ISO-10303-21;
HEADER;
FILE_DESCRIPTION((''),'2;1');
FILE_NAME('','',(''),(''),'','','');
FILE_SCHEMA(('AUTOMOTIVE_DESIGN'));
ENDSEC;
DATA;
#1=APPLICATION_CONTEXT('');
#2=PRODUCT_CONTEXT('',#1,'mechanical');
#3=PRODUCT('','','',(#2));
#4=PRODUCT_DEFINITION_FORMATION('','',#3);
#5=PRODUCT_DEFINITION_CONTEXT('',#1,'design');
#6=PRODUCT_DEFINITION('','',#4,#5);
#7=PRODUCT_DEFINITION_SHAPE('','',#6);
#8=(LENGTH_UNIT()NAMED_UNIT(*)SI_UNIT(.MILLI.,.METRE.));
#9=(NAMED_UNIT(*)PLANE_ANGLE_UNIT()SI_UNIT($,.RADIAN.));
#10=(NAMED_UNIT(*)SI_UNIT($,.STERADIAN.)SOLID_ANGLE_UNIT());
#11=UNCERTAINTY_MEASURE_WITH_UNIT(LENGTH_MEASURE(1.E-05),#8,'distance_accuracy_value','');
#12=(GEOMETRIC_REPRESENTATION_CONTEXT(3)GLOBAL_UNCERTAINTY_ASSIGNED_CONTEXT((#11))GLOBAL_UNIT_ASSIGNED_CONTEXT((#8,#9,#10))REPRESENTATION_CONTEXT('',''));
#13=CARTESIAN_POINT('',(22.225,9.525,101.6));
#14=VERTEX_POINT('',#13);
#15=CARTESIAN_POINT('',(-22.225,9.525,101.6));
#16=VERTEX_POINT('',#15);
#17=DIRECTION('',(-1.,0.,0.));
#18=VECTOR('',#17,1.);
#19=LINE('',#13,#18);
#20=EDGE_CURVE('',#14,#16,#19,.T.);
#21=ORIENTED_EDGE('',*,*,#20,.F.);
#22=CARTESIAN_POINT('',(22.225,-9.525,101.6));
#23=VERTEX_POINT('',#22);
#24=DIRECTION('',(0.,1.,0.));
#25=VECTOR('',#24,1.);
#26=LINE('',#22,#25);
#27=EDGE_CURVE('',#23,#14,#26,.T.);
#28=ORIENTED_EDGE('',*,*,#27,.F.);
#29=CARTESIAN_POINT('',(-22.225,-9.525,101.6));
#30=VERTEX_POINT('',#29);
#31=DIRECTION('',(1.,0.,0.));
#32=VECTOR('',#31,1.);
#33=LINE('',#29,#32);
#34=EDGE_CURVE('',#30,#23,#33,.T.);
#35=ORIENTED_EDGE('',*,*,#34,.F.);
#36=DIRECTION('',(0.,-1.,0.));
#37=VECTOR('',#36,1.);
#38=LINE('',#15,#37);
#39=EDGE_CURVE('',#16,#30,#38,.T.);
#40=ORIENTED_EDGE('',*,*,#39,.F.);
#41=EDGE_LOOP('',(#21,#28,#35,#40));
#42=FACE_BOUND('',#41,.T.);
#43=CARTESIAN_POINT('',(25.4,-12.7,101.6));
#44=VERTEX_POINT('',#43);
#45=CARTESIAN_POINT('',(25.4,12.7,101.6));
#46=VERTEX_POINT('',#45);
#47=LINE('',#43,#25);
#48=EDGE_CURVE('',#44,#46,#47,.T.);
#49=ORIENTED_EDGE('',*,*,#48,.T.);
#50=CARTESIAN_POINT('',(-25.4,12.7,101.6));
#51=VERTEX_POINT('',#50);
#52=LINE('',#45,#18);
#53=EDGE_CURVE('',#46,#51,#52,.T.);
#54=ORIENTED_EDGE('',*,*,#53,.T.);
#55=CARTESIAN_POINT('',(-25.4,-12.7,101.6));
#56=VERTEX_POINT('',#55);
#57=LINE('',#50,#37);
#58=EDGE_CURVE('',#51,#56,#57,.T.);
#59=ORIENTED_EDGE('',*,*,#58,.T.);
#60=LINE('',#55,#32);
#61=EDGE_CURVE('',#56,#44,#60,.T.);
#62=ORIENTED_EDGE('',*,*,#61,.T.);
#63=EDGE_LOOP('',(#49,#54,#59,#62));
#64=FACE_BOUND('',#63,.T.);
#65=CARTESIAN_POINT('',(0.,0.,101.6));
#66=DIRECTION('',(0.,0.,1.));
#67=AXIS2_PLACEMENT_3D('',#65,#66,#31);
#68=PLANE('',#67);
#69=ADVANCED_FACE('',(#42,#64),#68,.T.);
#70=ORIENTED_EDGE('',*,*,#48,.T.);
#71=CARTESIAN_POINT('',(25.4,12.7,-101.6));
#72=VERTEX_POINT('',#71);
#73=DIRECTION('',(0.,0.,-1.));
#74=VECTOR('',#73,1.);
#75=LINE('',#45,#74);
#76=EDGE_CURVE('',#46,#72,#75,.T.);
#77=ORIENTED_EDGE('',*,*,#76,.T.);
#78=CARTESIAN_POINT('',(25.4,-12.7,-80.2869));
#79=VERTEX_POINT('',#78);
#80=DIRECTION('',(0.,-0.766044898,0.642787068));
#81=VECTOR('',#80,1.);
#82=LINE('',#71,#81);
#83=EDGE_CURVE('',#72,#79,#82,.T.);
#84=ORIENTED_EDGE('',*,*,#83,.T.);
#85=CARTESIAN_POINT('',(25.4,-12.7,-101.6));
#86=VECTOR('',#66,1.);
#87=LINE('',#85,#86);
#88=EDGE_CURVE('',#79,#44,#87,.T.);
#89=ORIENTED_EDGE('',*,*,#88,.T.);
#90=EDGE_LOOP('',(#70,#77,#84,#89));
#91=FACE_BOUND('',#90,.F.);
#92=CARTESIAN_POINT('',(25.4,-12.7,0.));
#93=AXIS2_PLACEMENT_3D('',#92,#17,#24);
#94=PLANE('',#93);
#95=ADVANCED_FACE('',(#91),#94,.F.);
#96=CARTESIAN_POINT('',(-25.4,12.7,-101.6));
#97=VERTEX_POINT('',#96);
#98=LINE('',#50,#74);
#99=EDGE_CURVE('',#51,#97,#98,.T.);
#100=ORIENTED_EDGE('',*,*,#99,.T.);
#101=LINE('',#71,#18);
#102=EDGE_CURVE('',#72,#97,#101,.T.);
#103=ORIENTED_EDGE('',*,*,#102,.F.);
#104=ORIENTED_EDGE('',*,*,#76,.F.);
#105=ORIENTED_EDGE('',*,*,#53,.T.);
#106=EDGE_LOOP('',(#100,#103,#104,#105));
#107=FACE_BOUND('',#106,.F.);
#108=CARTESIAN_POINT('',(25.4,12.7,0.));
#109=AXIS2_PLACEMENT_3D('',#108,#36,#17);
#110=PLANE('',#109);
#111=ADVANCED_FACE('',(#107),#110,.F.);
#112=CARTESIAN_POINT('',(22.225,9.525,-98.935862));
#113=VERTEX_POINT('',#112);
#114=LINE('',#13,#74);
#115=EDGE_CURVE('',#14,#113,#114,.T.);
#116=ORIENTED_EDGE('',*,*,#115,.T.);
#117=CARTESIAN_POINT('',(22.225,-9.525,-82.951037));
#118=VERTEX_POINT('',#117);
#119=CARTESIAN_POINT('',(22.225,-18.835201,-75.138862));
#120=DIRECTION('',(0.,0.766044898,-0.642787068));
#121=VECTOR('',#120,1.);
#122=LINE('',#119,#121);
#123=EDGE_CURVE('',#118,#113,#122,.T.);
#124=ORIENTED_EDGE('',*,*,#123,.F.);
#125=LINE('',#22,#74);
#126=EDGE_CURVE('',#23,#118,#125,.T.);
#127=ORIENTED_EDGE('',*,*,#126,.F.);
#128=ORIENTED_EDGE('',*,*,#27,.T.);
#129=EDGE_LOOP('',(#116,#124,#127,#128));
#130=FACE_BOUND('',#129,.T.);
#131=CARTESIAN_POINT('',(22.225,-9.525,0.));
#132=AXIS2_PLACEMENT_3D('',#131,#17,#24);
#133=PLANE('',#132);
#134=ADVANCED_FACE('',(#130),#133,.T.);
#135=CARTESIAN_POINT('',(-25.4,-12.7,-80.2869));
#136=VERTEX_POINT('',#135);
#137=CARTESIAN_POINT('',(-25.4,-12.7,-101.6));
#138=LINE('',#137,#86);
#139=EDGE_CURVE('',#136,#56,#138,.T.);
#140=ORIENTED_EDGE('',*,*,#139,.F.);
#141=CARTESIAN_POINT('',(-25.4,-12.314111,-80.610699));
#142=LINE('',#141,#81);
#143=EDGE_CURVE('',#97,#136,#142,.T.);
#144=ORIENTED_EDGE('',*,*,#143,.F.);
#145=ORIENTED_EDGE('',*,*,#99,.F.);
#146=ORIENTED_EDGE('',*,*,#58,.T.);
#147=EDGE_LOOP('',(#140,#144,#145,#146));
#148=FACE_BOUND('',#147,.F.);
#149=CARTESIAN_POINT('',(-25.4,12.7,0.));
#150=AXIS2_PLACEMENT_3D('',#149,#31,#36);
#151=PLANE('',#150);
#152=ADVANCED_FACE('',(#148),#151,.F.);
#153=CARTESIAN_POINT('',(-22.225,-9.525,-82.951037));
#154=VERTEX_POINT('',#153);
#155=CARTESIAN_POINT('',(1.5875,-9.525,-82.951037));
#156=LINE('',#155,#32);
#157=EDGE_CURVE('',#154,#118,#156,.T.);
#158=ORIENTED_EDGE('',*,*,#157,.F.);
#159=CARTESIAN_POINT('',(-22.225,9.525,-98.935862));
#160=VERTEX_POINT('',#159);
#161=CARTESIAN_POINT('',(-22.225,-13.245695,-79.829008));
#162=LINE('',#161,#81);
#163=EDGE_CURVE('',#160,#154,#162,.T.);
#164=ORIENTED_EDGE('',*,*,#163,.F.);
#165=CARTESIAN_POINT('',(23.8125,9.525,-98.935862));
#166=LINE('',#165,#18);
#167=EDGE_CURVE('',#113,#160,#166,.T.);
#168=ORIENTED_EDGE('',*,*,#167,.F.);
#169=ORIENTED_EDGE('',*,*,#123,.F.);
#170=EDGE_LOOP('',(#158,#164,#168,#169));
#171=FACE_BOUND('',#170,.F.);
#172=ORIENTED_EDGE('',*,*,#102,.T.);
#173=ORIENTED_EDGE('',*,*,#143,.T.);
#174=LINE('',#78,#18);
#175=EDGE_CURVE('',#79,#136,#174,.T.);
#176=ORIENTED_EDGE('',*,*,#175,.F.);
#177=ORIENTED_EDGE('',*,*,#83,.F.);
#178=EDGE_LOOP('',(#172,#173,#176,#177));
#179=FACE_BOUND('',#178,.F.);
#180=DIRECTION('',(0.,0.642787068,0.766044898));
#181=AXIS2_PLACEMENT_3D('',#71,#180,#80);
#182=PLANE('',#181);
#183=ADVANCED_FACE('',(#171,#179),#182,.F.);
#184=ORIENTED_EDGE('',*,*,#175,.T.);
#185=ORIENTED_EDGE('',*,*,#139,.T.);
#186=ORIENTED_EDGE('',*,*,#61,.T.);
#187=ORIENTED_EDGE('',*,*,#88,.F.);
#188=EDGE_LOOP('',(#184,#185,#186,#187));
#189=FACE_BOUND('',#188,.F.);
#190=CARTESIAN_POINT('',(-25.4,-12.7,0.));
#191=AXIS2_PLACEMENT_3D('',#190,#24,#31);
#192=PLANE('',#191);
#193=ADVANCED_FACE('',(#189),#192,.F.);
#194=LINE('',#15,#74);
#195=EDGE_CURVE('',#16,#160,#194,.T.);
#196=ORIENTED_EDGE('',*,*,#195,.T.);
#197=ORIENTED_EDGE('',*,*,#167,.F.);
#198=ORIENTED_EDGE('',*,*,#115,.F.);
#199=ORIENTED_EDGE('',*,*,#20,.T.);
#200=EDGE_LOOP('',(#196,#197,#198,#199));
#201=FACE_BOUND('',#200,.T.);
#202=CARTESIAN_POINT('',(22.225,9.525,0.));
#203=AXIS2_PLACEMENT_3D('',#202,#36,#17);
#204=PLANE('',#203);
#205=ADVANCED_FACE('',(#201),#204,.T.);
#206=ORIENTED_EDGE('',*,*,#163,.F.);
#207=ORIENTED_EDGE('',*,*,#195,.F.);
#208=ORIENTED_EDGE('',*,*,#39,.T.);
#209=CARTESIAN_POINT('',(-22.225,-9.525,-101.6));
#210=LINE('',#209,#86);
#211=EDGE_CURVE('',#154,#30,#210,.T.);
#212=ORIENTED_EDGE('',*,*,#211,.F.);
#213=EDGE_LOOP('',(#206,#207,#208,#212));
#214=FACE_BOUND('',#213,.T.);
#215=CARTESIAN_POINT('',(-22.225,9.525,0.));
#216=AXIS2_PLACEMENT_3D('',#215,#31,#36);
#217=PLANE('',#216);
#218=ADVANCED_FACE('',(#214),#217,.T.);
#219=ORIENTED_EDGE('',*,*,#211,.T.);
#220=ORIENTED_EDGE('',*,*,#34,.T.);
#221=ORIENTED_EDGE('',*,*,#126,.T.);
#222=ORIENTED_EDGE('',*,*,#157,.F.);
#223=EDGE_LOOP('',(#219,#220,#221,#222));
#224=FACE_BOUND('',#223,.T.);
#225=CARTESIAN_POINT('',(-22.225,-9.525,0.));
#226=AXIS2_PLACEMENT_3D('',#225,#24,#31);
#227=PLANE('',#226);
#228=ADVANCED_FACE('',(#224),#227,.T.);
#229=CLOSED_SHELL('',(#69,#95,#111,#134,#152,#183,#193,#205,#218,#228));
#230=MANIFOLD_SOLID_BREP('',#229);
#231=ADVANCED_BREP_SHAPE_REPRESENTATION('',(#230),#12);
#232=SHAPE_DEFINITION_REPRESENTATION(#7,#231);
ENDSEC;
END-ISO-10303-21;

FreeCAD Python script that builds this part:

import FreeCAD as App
import Part
import Sketcher

V = App.Vector
Q = App.Units.Quantity

doc = App.newDocument("Part")
body = doc.addObject("PartDesign::Body", "Body")

# Sketch on XY plane
sketch1 = body.newObject("Sketcher::SketchObject", "Sketch")
sketch1.AttachmentSupport = (doc.getObject("XY_Plane"), [""])
sketch1.MapMode = "FlatFace"
sketch1.addGeometry([
    Part.LineSegment(V(-25, 13, 0), V(-25, -13, 0)),  # 0
    Part.LineSegment(V(-25, -13, 0), V(25, -13, 0)),  # 1
    Part.LineSegment(V(25, -13, 0), V(25, 13, 0)),  # 2
    Part.LineSegment(V(25, 13, 0), V(-25, 13, 0)),  # 3
    Part.LineSegment(V(22, -10, 0), V(-22, -10, 0)),  # 4
    Part.LineSegment(V(-22, -10, 0), V(-22, 10, 0)),  # 5
    Part.LineSegment(V(-22, 10, 0), V(22, 10, 0)),  # 6
    Part.LineSegment(V(22, 10, 0), V(22, -10, 0)),  # 7
], False)
sketch1.addConstraint([
    Sketcher.Constraint("Coincident", 0, 2, 1, 1),
    Sketcher.Constraint("Coincident", 1, 2, 2, 1),
    Sketcher.Constraint("Coincident", 2, 2, 3, 1),
    Sketcher.Constraint("Coincident", 3, 2, 0, 1),
    Sketcher.Constraint("Coincident", 4, 2, 5, 1),
    Sketcher.Constraint("Coincident", 5, 2, 6, 1),
    Sketcher.Constraint("Coincident", 6, 2, 7, 1),
    Sketcher.Constraint("Coincident", 7, 2, 4, 1),
    Sketcher.Constraint("Vertical", 0),
    Sketcher.Constraint("Horizontal", 1),
    Sketcher.Constraint("Vertical", 2),
    Sketcher.Constraint("Horizontal", 3),
    Sketcher.Constraint("Horizontal", 4),
    Sketcher.Constraint("Vertical", 5),
    Sketcher.Constraint("Horizontal", 6),
    Sketcher.Constraint("Vertical", 7),
    Sketcher.Constraint("Symmetric", 0, 2, 2, 2, -1, 1),
    Sketcher.Constraint("Symmetric", 4, 2, 6, 2, -1, 1),
    Sketcher.Constraint("DistanceX", 1, 1, 1, 2, Q("2 in")),
    Sketcher.Constraint("DistanceY", 0, 2, 0, 1, Q("1 in")),
    Sketcher.Constraint("DistanceX", 0, 2, 4, 2, Q("0.125 in")),
    Sketcher.Constraint("DistanceY", 0, 2, 4, 2, Q("0.125 in")),
])
pad1 = body.newObject("PartDesign::Pad", "Pad")
pad1.Profile = sketch1
pad1.Length = Q("8 in")
pad1.Midplane = True

# Sketch on YZ plane
sketch2 = body.newObject("Sketcher::SketchObject", "Sketch001")
sketch2.AttachmentSupport = (doc.getObject("YZ_Plane"), [""])
sketch2.MapMode = "FlatFace"
sketch2.AttachmentOffset = App.Placement(V(0, 0, 1 * 25.4), App.Rotation())
sketch2.addGeometry([
    Part.LineSegment(V(-13, -80, 0), V(-13, -102, 0)),
    Part.LineSegment(V(-13, -102, 0), V(13, -102, 0)),
    Part.LineSegment(V(13, -102, 0), V(-13, -80, 0)),
], False)
sketch2.addConstraint([
    Sketcher.Constraint("Coincident", 0, 2, 1, 1),
    Sketcher.Constraint("Coincident", 1, 2, 2, 1),
    Sketcher.Constraint("Coincident", 2, 2, 0, 1),
    Sketcher.Constraint("Vertical", 0),
    Sketcher.Constraint("Horizontal", 1),
    Sketcher.Constraint("DistanceX", 1, 1, 1, 2, Q("1 in")),
    Sketcher.Constraint("DistanceY", 0, 2, -1, 1, Q("4 in")),
    Sketcher.Constraint("Angle", 2, Q("140 deg")),
    Sketcher.Constraint("DistanceX", 0, 2, -1, 1, Q("0.5 in")),
])
pocket1 = body.newObject("PartDesign::Pocket", "Pocket")
pocket1.Profile = sketch2
pocket1.Type = "ThroughAll"

doc.recompute()
